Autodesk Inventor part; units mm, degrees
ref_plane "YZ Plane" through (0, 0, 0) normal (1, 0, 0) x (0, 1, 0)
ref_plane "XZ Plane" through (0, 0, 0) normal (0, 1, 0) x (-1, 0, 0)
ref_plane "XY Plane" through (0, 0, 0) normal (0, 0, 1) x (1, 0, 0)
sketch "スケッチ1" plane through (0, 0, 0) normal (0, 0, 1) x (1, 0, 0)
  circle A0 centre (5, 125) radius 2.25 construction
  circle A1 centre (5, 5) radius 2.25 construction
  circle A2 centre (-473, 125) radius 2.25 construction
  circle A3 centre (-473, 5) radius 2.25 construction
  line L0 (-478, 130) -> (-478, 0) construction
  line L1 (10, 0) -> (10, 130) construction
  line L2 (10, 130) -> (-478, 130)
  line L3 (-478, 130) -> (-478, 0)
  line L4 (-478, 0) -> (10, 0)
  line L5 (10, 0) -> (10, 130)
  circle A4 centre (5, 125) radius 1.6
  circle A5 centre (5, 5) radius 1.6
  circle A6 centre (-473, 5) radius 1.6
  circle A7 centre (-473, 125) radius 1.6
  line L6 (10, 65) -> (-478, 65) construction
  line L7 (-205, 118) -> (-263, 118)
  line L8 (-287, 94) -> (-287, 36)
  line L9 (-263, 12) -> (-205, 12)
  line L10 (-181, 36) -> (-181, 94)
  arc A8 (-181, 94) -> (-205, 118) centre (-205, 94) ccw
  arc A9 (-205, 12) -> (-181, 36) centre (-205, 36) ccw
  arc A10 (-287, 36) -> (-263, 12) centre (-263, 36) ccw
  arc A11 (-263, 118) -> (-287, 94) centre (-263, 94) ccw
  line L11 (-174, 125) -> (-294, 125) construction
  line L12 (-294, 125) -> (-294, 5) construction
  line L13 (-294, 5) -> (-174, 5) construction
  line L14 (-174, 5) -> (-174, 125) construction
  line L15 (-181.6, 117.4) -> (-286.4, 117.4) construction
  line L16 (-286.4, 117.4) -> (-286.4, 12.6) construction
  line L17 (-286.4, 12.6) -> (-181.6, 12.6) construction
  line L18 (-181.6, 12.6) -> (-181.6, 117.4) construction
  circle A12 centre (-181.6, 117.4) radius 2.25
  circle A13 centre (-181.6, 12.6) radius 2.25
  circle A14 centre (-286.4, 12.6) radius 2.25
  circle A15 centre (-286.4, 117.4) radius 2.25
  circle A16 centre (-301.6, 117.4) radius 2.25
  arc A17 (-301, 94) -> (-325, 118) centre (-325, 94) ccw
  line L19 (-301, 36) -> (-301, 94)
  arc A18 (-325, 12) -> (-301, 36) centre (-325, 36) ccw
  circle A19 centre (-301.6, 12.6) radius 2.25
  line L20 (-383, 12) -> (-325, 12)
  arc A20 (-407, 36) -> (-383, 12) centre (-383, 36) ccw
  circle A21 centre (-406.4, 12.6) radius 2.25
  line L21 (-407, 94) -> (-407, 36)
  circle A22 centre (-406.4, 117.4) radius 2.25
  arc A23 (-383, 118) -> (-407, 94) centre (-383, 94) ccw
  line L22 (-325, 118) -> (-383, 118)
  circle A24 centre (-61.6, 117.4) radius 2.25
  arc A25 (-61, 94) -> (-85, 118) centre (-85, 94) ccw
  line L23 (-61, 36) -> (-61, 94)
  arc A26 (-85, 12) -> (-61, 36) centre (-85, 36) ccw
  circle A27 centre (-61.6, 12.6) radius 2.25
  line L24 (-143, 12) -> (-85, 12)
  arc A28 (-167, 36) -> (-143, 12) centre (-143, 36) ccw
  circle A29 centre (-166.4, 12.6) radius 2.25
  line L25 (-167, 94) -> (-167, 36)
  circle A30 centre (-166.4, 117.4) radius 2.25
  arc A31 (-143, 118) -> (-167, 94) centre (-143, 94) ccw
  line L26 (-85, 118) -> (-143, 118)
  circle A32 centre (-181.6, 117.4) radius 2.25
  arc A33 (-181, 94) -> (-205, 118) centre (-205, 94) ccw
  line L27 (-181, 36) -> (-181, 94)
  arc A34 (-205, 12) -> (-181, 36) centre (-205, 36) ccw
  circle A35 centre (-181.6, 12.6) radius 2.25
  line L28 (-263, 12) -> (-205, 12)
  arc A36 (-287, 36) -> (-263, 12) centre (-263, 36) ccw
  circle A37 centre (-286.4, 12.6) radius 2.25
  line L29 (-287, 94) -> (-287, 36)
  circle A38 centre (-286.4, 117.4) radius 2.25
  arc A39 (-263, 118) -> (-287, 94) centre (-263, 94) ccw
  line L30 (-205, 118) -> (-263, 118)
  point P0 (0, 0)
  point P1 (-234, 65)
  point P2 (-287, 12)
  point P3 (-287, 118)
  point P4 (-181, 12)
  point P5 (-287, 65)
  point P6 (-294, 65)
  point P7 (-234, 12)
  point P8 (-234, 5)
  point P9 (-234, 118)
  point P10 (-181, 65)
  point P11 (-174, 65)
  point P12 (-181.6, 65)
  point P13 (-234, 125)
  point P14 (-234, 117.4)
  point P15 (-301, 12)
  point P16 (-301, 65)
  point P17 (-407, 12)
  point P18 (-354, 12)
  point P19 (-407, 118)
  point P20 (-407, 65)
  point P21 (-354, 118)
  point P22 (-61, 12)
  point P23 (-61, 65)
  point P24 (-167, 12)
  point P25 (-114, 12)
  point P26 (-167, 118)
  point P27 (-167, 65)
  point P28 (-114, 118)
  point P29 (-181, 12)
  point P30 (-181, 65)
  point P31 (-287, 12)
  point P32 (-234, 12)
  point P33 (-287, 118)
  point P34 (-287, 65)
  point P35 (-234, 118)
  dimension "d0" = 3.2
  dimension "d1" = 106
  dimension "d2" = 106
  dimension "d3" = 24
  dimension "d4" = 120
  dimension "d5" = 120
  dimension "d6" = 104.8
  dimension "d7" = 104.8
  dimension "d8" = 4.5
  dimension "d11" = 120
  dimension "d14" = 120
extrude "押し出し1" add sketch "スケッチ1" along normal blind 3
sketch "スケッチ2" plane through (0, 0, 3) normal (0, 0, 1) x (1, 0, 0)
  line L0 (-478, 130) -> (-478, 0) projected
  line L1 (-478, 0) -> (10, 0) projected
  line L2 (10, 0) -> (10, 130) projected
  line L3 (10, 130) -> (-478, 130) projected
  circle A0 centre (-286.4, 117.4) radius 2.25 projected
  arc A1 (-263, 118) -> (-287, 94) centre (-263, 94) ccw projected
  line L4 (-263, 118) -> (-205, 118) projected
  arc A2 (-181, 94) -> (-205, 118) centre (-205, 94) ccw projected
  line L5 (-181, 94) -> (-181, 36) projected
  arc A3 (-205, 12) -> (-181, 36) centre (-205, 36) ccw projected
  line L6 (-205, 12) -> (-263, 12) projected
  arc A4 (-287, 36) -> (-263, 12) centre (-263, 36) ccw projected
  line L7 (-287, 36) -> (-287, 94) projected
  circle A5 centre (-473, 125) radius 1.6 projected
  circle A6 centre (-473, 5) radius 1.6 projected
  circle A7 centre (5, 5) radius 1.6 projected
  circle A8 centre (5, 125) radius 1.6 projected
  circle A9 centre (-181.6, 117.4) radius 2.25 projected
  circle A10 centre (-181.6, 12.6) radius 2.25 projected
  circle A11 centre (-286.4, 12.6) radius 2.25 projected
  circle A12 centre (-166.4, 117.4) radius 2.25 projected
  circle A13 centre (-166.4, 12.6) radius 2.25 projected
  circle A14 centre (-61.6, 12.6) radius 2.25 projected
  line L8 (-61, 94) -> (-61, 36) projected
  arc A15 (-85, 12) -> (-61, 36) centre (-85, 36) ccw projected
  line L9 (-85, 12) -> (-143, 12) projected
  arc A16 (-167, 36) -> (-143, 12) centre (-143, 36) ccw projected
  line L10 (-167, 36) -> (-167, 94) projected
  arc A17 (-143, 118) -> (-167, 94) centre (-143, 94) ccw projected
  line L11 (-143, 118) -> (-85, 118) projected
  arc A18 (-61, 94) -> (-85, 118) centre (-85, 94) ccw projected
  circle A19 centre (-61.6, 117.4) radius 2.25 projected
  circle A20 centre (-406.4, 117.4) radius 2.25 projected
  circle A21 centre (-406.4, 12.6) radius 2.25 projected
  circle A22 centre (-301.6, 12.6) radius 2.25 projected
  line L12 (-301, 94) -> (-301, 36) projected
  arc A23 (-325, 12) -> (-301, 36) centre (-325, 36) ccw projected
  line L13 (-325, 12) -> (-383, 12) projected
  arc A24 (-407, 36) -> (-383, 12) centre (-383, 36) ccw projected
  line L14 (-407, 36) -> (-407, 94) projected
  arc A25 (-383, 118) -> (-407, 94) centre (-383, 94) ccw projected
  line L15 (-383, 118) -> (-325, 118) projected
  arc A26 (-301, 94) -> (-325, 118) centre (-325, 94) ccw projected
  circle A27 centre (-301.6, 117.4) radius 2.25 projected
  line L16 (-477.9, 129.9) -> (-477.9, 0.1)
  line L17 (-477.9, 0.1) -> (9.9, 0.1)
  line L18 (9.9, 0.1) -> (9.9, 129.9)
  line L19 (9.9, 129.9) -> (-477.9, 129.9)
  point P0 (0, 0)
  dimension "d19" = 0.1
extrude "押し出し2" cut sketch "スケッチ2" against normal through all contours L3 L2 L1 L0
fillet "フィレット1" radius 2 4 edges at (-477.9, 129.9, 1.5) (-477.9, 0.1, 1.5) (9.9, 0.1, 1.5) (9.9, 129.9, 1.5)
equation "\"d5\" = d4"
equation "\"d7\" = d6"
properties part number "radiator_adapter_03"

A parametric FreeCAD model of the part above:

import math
import FreeCAD as App
import Part
import Sketcher
from FreeCAD import Vector
Q = App.Units.Quantity


def edges_at(feature, points):
    """Names of the edges that pass closest to the given points."""
    edges = feature.Shape.Edges
    near = lambda p: min(range(len(edges)), key=lambda i: edges[i].distToShape(Part.Vertex(*p))[0])
    return sorted({f"Edge{near(p) + 1}" for p in points})


def add_polygon(sketch, points):
    """Adds a closed chain of lines whose ends are joined by coincident constraints."""
    first, n = sketch.GeometryCount, len(points)
    for a, b in zip(points, points[1:] + points[:1]):
        sketch.addGeometry(Part.LineSegment(App.Vector(*a, 0), App.Vector(*b, 0)), False)
    for i in range(n):
        sketch.addConstraint(Sketcher.Constraint("Coincident", first + i, 2, first + (i + 1) % n, 1))

doc = App.newDocument("Part")
body = doc.addObject("PartDesign::Body", "Body")

sketch1 = doc.addObject("Sketcher::SketchObject", "Sketch")
body.addObject(sketch1)
sketch1.AttachmentSupport = (doc.XY_Plane, [""])
sketch1.MapMode = "FlatFace"
add_polygon(sketch1, [(10, 0), (10, 130), (-478, 130), (-478, 0)])
sketch1.addGeometry(Part.Circle(Vector(-473, 5, 0), Vector(0, 0, 1), 1.6), False)
sketch1.addGeometry(Part.Circle(Vector(-406.4, 12.6, 0), Vector(0, 0, 1), 2.25), False)
sketch1.addGeometry(Part.Circle(Vector(-301.6, 12.6, 0), Vector(0, 0, 1), 2.25), False)
sketch1.addGeometry(Part.Circle(Vector(-286.4, 12.6, 0), Vector(0, 0, 1), 2.25), False)
sketch1.addGeometry(Part.Circle(Vector(-181.6, 12.6, 0), Vector(0, 0, 1), 2.25), False)
sketch1.addGeometry(Part.Circle(Vector(-166.4, 12.6, 0), Vector(0, 0, 1), 2.25), False)
sketch1.addGeometry(Part.Circle(Vector(-61.6, 12.6, 0), Vector(0, 0, 1), 2.25), False)
sketch1.addGeometry(Part.Circle(Vector(5, 5, 0), Vector(0, 0, 1), 1.6), False)
sketch1.addGeometry(Part.ArcOfCircle(Part.Circle(Vector(-325, 94, 0), Vector(0, 0, 1), 24), math.radians(0), math.radians(90)), False)
sketch1.addGeometry(Part.LineSegment(Vector(-301, 94, 0), Vector(-301, 36, 0)), False)
sketch1.addGeometry(Part.ArcOfCircle(Part.Circle(Vector(-325, 36, 0), Vector(0, 0, 1), 24), math.radians(-90), math.radians(0)), False)
sketch1.addGeometry(Part.LineSegment(Vector(-325, 12, 0), Vector(-383, 12, 0)), False)
sketch1.addGeometry(Part.ArcOfCircle(Part.Circle(Vector(-383, 36, 0), Vector(0, 0, 1), 24), math.radians(180), math.radians(270)), False)
sketch1.addGeometry(Part.LineSegment(Vector(-407, 36, 0), Vector(-407, 94, 0)), False)
sketch1.addGeometry(Part.ArcOfCircle(Part.Circle(Vector(-383, 94, 0), Vector(0, 0, 1), 24), math.radians(90), math.radians(180)), False)
sketch1.addGeometry(Part.LineSegment(Vector(-383, 118, 0), Vector(-325, 118, 0)), False)
sketch1.addGeometry(Part.Circle(Vector(-473, 125, 0), Vector(0, 0, 1), 1.6), False)
sketch1.addGeometry(Part.Circle(Vector(-406.4, 117.4, 0), Vector(0, 0, 1), 2.25), False)
sketch1.addGeometry(Part.Circle(Vector(-301.6, 117.4, 0), Vector(0, 0, 1), 2.25), False)
sketch1.addGeometry(Part.Circle(Vector(-286.4, 117.4, 0), Vector(0, 0, 1), 2.25), False)
sketch1.addGeometry(Part.LineSegment(Vector(-263, 118, 0), Vector(-205, 118, 0)), False)
sketch1.addGeometry(Part.ArcOfCircle(Part.Circle(Vector(-205, 94, 0), Vector(0, 0, 1), 24), math.radians(0), math.radians(90)), False)
sketch1.addGeometry(Part.LineSegment(Vector(-181, 94, 0), Vector(-181, 36, 0)), False)
sketch1.addGeometry(Part.ArcOfCircle(Part.Circle(Vector(-205, 36, 0), Vector(0, 0, 1), 24), math.radians(-90), math.radians(0)), False)
sketch1.addGeometry(Part.LineSegment(Vector(-205, 12, 0), Vector(-263, 12, 0)), False)
sketch1.addGeometry(Part.ArcOfCircle(Part.Circle(Vector(-263, 36, 0), Vector(0, 0, 1), 24), math.radians(180), math.radians(270)), False)
sketch1.addGeometry(Part.LineSegment(Vector(-287, 36, 0), Vector(-287, 94, 0)), False)
sketch1.addGeometry(Part.ArcOfCircle(Part.Circle(Vector(-263, 94, 0), Vector(0, 0, 1), 24), math.radians(90), math.radians(180)), False)
sketch1.addGeometry(Part.ArcOfCircle(Part.Circle(Vector(-85, 94, 0), Vector(0, 0, 1), 24), math.radians(0), math.radians(90)), False)
sketch1.addGeometry(Part.LineSegment(Vector(-61, 94, 0), Vector(-61, 36, 0)), False)
sketch1.addGeometry(Part.ArcOfCircle(Part.Circle(Vector(-85, 36, 0), Vector(0, 0, 1), 24), math.radians(-90), math.radians(0)), False)
sketch1.addGeometry(Part.LineSegment(Vector(-85, 12, 0), Vector(-143, 12, 0)), False)
sketch1.addGeometry(Part.ArcOfCircle(Part.Circle(Vector(-143, 36, 0), Vector(0, 0, 1), 24), math.radians(180), math.radians(270)), False)
sketch1.addGeometry(Part.LineSegment(Vector(-167, 36, 0), Vector(-167, 94, 0)), False)
sketch1.addGeometry(Part.ArcOfCircle(Part.Circle(Vector(-143, 94, 0), Vector(0, 0, 1), 24), math.radians(90), math.radians(180)), False)
sketch1.addGeometry(Part.LineSegment(Vector(-143, 118, 0), Vector(-85, 118, 0)), False)
sketch1.addGeometry(Part.Circle(Vector(-181.6, 117.4, 0), Vector(0, 0, 1), 2.25), False)
sketch1.addGeometry(Part.Circle(Vector(-166.4, 117.4, 0), Vector(0, 0, 1), 2.25), False)
sketch1.addGeometry(Part.Circle(Vector(-61.6, 117.4, 0), Vector(0, 0, 1), 2.25), False)
sketch1.addGeometry(Part.Circle(Vector(5, 125, 0), Vector(0, 0, 1), 1.6), False)
sketch1.addConstraint([
    Sketcher.Constraint("Tangent", 12, 1, 13, 1),
    Sketcher.Constraint("Tangent", 13, 2, 14, 2),
    Sketcher.Constraint("Tangent", 14, 1, 15, 1),
    Sketcher.Constraint("Tangent", 15, 2, 16, 2),
    Sketcher.Constraint("Tangent", 16, 1, 17, 1),
    Sketcher.Constraint("Tangent", 17, 2, 18, 2),
    Sketcher.Constraint("Tangent", 18, 1, 19, 1),
    Sketcher.Constraint("Tangent", 19, 2, 12, 2),
    Sketcher.Constraint("Tangent", 24, 2, 25, 2),
    Sketcher.Constraint("Tangent", 25, 1, 26, 1),
    Sketcher.Constraint("Tangent", 26, 2, 27, 2),
    Sketcher.Constraint("Tangent", 27, 1, 28, 1),
    Sketcher.Constraint("Tangent", 28, 2, 29, 2),
    Sketcher.Constraint("Tangent", 29, 1, 30, 1),
    Sketcher.Constraint("Tangent", 30, 2, 31, 2),
    Sketcher.Constraint("Tangent", 31, 1, 24, 1),
    Sketcher.Constraint("Tangent", 32, 1, 33, 1),
    Sketcher.Constraint("Tangent", 33, 2, 34, 2),
    Sketcher.Constraint("Tangent", 34, 1, 35, 1),
    Sketcher.Constraint("Tangent", 35, 2, 36, 2),
    Sketcher.Constraint("Tangent", 36, 1, 37, 1),
    Sketcher.Constraint("Tangent", 37, 2, 38, 2),
    Sketcher.Constraint("Tangent", 38, 1, 39, 1),
    Sketcher.Constraint("Tangent", 39, 2, 32, 2),
    Sketcher.Constraint("Vertical", 0),
    Sketcher.Constraint("Horizontal", 1),
    Sketcher.Constraint("Vertical", 2),
    Sketcher.Constraint("Horizontal", 3),
    Sketcher.Constraint("Vertical", 13),
    Sketcher.Constraint("Horizontal", 15),
    Sketcher.Constraint("Vertical", 17),
    Sketcher.Constraint("Horizontal", 19),
    Sketcher.Constraint("Horizontal", 24),
    Sketcher.Constraint("Vertical", 26),
    Sketcher.Constraint("Horizontal", 28),
    Sketcher.Constraint("Vertical", 30),
    Sketcher.Constraint("Vertical", 33),
    Sketcher.Constraint("Horizontal", 35),
    Sketcher.Constraint("Vertical", 37),
    Sketcher.Constraint("Horizontal", 39),
    Sketcher.Constraint("Equal", 5, 6),
    Sketcher.Constraint("Equal", 6, 7),
    Sketcher.Constraint("Equal", 7, 8),
    Sketcher.Constraint("Equal", 8, 9),
    Sketcher.Constraint("Equal", 9, 10),
    Sketcher.Constraint("Equal", 4, 11),
    Sketcher.Constraint("Equal", 12, 14),
    Sketcher.Constraint("Equal", 14, 16),
    Sketcher.Constraint("Equal", 16, 18),
    Sketcher.Constraint("Equal", 11, 20),
    Sketcher.Constraint("Equal", 10, 21),
    Sketcher.Constraint("Equal", 21, 22),
    Sketcher.Constraint("Equal", 22, 23),
    Sketcher.Constraint("Equal", 18, 25),
    Sketcher.Constraint("Equal", 25, 27),
    Sketcher.Constraint("Equal", 27, 29),
    Sketcher.Constraint("Equal", 29, 31),
    Sketcher.Constraint("Equal", 31, 32),
    Sketcher.Constraint("Equal", 32, 34),
    Sketcher.Constraint("Equal", 34, 36),
    Sketcher.Constraint("Equal", 36, 38),
    Sketcher.Constraint("Equal", 23, 40),
    Sketcher.Constraint("Equal", 40, 41),
    Sketcher.Constraint("Equal", 41, 42),
    Sketcher.Constraint("Equal", 20, 43),
    Sketcher.Constraint("PointOnObject", 2, 2, -1),
    Sketcher.Constraint("Horizontal", 5, 3, 6, 3),
    Sketcher.Constraint("Horizontal", 6, 3, 7, 3),
    Sketcher.Constraint("Horizontal", 7, 3, 8, 3),
    Sketcher.Constraint("Horizontal", 8, 3, 9, 3),
    Sketcher.Constraint("Horizontal", 9, 3, 10, 3),
    Sketcher.Constraint("Horizontal", 4, 3, 11, 3),
    Sketcher.Constraint("Horizontal", 21, 3, 22, 3),
    Sketcher.Constraint("Horizontal", 22, 3, 23, 3),
    Sketcher.Constraint("Horizontal", 18, 3, 25, 3),
    Sketcher.Constraint("Horizontal", 16, 3, 27, 3),
    Sketcher.Constraint("Horizontal", 31, 3, 32, 3),
    Sketcher.Constraint("Horizontal", 29, 3, 34, 3),
    Sketcher.Constraint("Horizontal", 23, 3, 40, 3),
    Sketcher.Constraint("Horizontal", 40, 3, 41, 3),
    Sketcher.Constraint("Horizontal", 41, 3, 42, 3),
    Sketcher.Constraint("Horizontal", 20, 3, 43, 3),
    Sketcher.Constraint("Vertical", 4, 3, 20, 3),
    Sketcher.Constraint("Vertical", 5, 3, 21, 3),
    Sketcher.Constraint("Vertical", 6, 3, 22, 3),
    Sketcher.Constraint("Vertical", 7, 3, 23, 3),
    Sketcher.Constraint("Vertical", 8, 3, 40, 3),
    Sketcher.Constraint("Vertical", 9, 3, 41, 3),
    Sketcher.Constraint("Vertical", 10, 3, 42, 3),
    Sketcher.Constraint("Vertical", 11, 3, 43, 3),
    Sketcher.Constraint("Equal", 19, 24),
    Sketcher.Constraint("Equal", 28, 35),
    Sketcher.Constraint("Equal", 39, 13),
    Sketcher.Constraint("Radius", 12, Q("24 mm")),
    Sketcher.Constraint("Diameter", 4, Q("3.2 mm")),
    Sketcher.Constraint("Diameter", 5, Q("4.5 mm")),
    Sketcher.Constraint("DistanceX", 5, 3, 7, 3, Q("120 mm")),
    Sketcher.Constraint("DistanceX", 6, 3, 8, 3, Q("120 mm")),
    Sketcher.Constraint("DistanceX", 7, 3, 9, 3, Q("120 mm")),
    Sketcher.Constraint("DistanceX", 8, 3, 10, 3, Q("120 mm")),
    Sketcher.Constraint("DistanceY", 4, 3, 20, 3, Q("120 mm")),
    Sketcher.Constraint("DistanceX", 25, 3, 32, 3, Q("120 mm")),
    Sketcher.Constraint("DistanceX", 5, 3, 6, 3, Q("104.8 mm")),
    Sketcher.Constraint("DistanceY", 5, 3, 21, 3, Q("104.8 mm")),
    Sketcher.Constraint("DistanceX", 1, 2, 1, 1, Q("488 mm")),
    Sketcher.Constraint("DistanceX", 15, 2, 15, 1, Q("58 mm")),
    Sketcher.Constraint("DistanceY", 0, 1, 0, 2, Q("130 mm")),
    Sketcher.Constraint("DistanceX", 4, 3, -1, 1, Q("473 mm")),
    Sketcher.Constraint("DistanceY", -1, 1, 4, 3, Q("5 mm")),
    Sketcher.Constraint("DistanceX", -1, 1, 11, 3, Q("5 mm")),
    Sketcher.Constraint("DistanceX", 12, 3, -1, 1, Q("325 mm")),
    Sketcher.Constraint("DistanceY", -1, 1, 12, 3, Q("94 mm")),
    Sketcher.Constraint("DistanceX", 25, 3, -1, 1, Q("205 mm")),
    Sketcher.Constraint("DistanceX", -1, 1, 0, 2, Q("10 mm")),
    Sketcher.Constraint("DistanceX", 5, 3, -1, 1, Q("406.4 mm")),
    Sketcher.Constraint("DistanceY", -1, 1, 5, 3, Q("12.6 mm")),
])
pad1 = doc.addObject("PartDesign::Pad", "Pad")
body.addObject(pad1)
pad1.Profile = sketch1
pad1.Length = 3

sketch2 = doc.addObject("Sketcher::SketchObject", "Sketch001")
body.addObject(sketch2)
sketch2.AttachmentSupport = (doc.XY_Plane, [""])
sketch2.MapMode = "FlatFace"
sketch2.AttachmentOffset = App.Placement(Vector(0, 0, 3), App.Rotation())
add_polygon(sketch2, [(10, 130), (-478, 130), (-478, 0), (10, 0)])
add_polygon(sketch2, [(-477.9, 0.1), (-477.9, 129.9), (9.9, 129.9), (9.9, 0.1)])
sketch2.addConstraint([
    Sketcher.Constraint("Horizontal", 0),
    Sketcher.Constraint("Vertical", 1),
    Sketcher.Constraint("Horizontal", 2),
    Sketcher.Constraint("Vertical", 3),
    Sketcher.Constraint("Vertical", 4),
    Sketcher.Constraint("Horizontal", 5),
    Sketcher.Constraint("Vertical", 6),
    Sketcher.Constraint("Horizontal", 7),
    Sketcher.Constraint("PointOnObject", 1, 2, -1),
    Sketcher.Constraint("DistanceY", -1, 1, 6, 2, Q("0.1 mm")),
    Sketcher.Constraint("DistanceX", 0, 2, 4, 2, Q("0.1 mm")),
    Sketcher.Constraint("DistanceY", 4, 2, 0, 2, Q("0.1 mm")),
    Sketcher.Constraint("DistanceX", 5, 2, 3, 2, Q("0.1 mm")),
    Sketcher.Constraint("DistanceX", 0, 2, 0, 1, Q("488 mm")),
    Sketcher.Constraint("DistanceY", 1, 2, 1, 1, Q("130 mm")),
    Sketcher.Constraint("DistanceX", 0, 2, -1, 1, Q("478 mm")),
])
pocket1 = doc.addObject("PartDesign::Pocket", "Pocket")
body.addObject(pocket1)
pocket1.Profile = sketch2
pocket1.Type = "ThroughAll"
doc.recompute()

fillet = doc.addObject("PartDesign::Fillet", "Fillet")
body.addObject(fillet)
fillet.Base = (pocket1, edges_at(pocket1, [
    (-477.9, 129.9, 1.5),
    (-477.9, 0.1, 1.5),
    (9.9, 0.1, 1.5),
    (9.9, 129.9, 1.5),
]))
fillet.Radius = 2

doc.recompute()
